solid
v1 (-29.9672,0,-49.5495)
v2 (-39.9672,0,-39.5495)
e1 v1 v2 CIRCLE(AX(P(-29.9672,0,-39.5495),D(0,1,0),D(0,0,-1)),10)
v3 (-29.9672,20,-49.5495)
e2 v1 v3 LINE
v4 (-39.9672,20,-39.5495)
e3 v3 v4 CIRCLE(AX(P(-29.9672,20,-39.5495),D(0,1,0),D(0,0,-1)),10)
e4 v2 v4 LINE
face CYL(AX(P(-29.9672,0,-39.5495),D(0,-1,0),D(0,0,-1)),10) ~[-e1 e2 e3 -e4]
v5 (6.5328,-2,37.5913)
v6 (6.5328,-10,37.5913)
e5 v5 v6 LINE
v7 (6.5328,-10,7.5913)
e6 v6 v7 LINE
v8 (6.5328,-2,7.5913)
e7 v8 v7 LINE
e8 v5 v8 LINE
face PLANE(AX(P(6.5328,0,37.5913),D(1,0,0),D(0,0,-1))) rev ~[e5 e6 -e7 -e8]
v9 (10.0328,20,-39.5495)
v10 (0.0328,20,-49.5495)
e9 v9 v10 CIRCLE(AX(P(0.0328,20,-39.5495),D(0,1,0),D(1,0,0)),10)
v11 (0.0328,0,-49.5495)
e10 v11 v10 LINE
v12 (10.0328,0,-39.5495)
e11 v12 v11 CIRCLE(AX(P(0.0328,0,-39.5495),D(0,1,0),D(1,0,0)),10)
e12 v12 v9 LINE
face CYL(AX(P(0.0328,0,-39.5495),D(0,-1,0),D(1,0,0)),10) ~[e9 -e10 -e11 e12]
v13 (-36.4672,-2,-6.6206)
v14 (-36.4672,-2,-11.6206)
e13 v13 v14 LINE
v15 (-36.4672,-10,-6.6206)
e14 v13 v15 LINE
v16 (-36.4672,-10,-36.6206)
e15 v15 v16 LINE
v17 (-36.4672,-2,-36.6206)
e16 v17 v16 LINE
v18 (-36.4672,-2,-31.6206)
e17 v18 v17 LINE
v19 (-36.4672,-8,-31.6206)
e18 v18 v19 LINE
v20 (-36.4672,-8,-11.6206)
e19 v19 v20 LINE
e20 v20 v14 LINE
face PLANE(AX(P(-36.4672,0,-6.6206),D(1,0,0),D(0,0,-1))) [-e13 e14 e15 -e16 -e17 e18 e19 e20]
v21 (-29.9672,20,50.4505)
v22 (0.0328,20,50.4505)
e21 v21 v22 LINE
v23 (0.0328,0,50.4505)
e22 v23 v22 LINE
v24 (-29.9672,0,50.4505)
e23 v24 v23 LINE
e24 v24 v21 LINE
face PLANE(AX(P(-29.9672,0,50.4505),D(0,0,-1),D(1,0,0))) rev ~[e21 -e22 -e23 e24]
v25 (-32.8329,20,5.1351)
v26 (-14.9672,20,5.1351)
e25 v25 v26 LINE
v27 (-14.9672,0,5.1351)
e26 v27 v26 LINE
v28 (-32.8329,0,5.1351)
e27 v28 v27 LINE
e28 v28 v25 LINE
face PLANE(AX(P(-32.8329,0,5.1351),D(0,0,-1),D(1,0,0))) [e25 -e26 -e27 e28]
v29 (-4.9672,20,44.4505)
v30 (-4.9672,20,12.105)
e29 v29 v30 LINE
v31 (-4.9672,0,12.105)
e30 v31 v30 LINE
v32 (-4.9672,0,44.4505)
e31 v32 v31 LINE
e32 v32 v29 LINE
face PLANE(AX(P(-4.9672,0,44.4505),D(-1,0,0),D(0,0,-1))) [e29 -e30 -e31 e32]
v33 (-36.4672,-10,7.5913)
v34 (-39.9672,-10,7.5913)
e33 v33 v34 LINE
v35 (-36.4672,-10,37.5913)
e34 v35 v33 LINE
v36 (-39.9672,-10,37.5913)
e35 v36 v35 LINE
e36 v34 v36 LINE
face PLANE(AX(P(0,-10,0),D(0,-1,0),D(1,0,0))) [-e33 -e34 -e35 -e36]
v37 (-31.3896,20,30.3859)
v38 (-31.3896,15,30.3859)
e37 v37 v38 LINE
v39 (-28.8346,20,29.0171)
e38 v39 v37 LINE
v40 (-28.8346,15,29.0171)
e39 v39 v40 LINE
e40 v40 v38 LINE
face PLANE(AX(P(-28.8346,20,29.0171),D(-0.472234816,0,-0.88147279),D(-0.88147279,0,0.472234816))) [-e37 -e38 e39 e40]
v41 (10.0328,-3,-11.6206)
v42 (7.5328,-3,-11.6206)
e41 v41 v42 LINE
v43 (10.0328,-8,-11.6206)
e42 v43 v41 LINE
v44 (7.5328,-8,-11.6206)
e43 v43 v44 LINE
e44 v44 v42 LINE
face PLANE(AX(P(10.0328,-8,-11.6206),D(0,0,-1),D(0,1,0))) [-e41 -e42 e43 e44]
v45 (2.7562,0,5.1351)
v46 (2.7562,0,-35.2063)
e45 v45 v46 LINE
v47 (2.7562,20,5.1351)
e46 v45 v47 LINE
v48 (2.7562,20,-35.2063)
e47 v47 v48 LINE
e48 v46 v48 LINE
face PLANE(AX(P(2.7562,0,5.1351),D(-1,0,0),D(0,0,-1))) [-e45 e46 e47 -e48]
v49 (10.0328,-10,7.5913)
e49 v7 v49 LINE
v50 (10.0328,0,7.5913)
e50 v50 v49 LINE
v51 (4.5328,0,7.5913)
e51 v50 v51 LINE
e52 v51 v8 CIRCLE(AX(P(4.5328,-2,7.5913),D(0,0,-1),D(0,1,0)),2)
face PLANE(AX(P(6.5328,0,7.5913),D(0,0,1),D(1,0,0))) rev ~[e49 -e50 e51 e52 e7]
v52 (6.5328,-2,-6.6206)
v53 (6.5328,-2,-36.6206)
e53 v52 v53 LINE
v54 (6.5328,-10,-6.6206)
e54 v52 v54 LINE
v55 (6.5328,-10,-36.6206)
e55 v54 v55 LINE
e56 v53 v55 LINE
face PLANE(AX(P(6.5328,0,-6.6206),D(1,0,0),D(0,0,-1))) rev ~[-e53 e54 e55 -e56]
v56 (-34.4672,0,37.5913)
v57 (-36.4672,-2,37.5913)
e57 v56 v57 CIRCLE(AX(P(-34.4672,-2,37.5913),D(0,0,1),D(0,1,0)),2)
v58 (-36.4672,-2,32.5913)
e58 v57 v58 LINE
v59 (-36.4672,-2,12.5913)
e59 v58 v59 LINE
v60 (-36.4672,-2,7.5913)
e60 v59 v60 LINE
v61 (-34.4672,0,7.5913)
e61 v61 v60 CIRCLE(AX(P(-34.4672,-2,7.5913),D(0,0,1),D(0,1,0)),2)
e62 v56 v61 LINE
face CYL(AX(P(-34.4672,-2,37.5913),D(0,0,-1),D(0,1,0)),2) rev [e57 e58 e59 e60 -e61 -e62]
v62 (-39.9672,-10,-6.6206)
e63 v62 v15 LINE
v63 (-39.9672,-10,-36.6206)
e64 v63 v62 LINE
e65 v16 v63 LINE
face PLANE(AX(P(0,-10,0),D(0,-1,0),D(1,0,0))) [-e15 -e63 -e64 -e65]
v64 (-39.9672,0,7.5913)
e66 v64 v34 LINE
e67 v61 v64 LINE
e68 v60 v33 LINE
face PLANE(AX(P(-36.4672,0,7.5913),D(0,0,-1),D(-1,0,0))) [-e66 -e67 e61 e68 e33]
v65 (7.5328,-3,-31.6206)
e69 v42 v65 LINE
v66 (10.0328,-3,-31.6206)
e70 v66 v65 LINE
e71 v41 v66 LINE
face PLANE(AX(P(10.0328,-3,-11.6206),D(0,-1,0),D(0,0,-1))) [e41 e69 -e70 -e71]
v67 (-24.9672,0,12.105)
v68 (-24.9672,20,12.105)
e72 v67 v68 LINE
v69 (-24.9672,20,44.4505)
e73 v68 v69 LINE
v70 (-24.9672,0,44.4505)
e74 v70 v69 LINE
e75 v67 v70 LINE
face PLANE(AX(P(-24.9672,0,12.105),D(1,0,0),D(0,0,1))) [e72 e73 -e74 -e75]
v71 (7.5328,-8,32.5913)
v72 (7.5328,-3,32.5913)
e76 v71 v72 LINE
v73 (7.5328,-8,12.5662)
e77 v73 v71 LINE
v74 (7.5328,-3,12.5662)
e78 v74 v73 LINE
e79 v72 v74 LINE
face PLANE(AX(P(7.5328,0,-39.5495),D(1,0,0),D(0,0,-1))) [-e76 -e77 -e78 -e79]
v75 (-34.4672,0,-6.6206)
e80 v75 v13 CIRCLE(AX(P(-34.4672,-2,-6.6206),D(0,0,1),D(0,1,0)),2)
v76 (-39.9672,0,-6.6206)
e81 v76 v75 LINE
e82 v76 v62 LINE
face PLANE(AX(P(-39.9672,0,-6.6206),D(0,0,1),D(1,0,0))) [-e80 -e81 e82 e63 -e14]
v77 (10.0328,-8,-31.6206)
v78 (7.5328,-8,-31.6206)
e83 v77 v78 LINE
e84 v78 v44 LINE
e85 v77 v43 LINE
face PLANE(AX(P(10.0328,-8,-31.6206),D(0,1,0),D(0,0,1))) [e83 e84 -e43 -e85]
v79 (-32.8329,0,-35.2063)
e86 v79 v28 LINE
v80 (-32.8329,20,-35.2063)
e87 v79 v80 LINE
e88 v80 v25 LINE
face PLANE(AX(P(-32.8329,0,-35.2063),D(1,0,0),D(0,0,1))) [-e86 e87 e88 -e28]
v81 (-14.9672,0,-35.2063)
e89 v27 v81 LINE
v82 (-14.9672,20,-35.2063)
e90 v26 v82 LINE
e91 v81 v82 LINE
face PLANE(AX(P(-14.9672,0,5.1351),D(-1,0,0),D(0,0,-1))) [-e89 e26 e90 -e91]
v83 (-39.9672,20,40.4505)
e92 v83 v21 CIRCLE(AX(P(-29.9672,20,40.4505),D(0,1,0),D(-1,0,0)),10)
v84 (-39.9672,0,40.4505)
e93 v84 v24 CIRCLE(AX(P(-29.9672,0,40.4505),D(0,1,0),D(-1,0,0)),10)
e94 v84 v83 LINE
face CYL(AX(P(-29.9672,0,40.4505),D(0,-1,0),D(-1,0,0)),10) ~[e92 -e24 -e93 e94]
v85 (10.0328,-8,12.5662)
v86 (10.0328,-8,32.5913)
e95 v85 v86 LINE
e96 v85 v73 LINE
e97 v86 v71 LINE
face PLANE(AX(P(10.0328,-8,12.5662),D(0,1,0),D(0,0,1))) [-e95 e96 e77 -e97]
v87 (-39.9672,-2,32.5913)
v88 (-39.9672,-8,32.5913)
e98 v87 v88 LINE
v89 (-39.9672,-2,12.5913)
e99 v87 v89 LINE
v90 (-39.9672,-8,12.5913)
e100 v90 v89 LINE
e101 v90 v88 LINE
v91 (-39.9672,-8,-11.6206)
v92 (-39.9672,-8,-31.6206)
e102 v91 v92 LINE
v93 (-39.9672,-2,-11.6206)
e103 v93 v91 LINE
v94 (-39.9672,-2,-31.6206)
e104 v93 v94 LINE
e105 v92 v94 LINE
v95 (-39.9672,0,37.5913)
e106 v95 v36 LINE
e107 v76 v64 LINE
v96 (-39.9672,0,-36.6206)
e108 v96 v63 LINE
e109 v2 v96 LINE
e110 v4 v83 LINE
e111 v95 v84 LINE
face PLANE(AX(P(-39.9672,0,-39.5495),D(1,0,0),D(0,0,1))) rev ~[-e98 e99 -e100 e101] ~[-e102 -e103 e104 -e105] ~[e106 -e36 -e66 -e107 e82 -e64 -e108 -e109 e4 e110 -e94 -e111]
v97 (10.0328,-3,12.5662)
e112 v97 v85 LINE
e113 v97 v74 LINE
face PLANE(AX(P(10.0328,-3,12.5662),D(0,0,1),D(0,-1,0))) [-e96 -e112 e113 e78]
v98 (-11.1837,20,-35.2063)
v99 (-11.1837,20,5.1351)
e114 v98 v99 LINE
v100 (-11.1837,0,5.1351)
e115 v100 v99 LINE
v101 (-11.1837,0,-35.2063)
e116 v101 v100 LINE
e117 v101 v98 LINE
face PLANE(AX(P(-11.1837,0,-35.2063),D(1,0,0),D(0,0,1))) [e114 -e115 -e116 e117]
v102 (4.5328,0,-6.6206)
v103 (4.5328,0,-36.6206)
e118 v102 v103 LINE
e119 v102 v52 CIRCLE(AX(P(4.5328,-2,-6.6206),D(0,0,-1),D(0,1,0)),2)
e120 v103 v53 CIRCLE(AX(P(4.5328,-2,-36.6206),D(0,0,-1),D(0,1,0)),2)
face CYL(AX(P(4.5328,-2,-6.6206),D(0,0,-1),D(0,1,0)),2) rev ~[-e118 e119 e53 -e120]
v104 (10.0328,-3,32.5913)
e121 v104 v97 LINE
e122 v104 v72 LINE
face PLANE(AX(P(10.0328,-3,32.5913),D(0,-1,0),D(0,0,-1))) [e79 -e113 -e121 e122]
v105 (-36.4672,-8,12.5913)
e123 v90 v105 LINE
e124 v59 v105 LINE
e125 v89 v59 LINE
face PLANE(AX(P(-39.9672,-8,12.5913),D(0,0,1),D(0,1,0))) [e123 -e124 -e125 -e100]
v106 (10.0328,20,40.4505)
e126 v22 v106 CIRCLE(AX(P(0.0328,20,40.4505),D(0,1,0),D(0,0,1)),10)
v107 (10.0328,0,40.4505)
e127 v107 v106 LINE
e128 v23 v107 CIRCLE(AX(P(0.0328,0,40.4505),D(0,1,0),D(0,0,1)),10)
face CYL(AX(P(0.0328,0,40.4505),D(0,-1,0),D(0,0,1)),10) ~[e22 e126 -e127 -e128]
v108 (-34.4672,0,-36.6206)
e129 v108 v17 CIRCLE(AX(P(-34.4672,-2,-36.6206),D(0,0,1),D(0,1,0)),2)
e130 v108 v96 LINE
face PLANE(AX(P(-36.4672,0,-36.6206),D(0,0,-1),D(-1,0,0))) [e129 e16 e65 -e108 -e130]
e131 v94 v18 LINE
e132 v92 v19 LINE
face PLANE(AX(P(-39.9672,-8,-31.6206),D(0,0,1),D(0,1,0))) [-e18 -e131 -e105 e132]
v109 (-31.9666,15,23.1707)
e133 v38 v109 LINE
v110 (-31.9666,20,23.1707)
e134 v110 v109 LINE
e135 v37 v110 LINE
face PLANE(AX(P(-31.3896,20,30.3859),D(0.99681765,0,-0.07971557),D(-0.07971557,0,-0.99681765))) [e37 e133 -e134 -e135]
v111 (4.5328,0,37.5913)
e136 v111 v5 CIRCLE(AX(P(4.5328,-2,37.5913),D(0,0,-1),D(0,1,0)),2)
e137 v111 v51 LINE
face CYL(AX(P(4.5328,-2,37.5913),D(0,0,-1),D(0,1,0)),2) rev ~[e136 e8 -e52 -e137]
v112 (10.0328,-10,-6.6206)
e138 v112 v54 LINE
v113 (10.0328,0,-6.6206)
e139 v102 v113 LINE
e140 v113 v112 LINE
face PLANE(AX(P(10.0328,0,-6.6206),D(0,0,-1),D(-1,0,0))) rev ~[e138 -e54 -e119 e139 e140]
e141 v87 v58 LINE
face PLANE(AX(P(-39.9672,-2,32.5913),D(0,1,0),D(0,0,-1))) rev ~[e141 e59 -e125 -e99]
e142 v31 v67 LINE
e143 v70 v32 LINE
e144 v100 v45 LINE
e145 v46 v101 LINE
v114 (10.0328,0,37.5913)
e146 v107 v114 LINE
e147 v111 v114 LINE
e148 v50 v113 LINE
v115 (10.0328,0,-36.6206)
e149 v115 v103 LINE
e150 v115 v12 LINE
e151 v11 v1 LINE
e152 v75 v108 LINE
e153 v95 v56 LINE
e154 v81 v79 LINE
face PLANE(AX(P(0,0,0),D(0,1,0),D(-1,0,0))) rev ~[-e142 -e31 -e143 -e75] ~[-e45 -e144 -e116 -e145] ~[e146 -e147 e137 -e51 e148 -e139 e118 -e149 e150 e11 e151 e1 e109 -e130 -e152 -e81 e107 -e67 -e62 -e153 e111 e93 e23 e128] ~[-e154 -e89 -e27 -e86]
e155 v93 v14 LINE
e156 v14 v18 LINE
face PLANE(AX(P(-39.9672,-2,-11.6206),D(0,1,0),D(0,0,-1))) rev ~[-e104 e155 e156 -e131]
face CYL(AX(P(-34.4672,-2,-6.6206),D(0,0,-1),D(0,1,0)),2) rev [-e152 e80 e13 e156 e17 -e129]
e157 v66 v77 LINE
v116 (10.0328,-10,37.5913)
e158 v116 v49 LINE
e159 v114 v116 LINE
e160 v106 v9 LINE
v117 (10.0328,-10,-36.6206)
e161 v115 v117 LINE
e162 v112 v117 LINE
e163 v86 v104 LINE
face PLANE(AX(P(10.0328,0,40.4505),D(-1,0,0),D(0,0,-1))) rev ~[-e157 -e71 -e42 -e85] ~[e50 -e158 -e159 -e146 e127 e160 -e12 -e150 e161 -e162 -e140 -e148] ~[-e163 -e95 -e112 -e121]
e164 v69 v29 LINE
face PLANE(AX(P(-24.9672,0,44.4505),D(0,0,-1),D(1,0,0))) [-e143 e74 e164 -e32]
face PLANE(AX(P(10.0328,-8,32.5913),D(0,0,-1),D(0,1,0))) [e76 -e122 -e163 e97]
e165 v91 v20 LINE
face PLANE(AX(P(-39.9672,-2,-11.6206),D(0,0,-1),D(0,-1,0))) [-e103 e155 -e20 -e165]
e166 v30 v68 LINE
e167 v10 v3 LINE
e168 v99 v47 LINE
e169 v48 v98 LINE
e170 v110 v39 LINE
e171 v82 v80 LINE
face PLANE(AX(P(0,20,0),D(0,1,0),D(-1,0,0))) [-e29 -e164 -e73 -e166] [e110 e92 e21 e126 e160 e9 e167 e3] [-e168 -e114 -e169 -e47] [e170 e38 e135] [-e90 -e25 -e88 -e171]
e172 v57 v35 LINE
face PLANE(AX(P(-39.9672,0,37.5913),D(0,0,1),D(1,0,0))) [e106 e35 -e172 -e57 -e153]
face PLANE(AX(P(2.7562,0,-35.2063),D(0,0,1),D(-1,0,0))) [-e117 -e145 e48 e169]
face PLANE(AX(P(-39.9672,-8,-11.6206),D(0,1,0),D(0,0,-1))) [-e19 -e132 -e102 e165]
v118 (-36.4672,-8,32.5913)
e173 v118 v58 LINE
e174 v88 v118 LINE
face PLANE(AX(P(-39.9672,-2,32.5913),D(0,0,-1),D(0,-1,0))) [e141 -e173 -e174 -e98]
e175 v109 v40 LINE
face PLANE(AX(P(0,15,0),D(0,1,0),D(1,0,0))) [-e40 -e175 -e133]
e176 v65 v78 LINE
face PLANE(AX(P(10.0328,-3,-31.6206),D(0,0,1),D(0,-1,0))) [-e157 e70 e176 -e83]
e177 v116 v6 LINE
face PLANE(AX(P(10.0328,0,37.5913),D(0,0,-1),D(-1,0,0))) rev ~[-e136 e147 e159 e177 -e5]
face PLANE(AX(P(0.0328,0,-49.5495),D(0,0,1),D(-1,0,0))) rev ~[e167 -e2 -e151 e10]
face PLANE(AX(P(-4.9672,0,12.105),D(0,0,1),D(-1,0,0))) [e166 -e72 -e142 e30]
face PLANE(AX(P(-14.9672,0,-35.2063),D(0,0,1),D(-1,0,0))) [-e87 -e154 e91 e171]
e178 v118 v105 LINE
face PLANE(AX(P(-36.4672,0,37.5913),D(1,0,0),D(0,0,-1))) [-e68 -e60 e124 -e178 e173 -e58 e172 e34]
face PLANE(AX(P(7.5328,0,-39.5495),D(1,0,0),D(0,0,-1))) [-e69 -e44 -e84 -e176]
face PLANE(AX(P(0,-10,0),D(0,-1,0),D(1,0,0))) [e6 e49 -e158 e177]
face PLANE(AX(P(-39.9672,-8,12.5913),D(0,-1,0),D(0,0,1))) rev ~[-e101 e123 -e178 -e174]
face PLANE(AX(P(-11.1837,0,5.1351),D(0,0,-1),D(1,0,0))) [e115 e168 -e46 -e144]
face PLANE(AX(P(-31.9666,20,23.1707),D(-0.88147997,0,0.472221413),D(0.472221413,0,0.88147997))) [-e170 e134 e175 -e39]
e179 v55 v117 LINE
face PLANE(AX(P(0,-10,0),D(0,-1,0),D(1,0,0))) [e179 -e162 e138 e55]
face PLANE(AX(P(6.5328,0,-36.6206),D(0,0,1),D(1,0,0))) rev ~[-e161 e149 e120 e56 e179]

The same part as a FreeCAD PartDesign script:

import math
import FreeCAD as App
import Part
import Sketcher

V = App.Vector
Q = App.Units.Quantity


def edges_at(feature, points):
    """Names of the edges that pass closest to the given points."""
    edges = feature.Shape.Edges
    near = lambda p: min(range(len(edges)), key=lambda i: edges[i].distToShape(Part.Vertex(*p))[0])
    return sorted({f"Edge{near(p) + 1}" for p in points})

doc = App.newDocument("Part")
params = doc.addObject("Spreadsheet::Sheet", "Params")
for row, (alias, value) in enumerate([
    ("sketch1_radius", "10 mm"),
    ("sketch1_height", "80 mm"),
    ("sketch1_width", "13.94 mm"),
    ("pad1_length", "20 mm"),
    ("sketch2_height", "30 mm"),
    ("sketch2_width", "3.5 mm"),
    ("pad2_length", "10 mm"),
    ("fillet_radius", "2 mm"),
    ("sketch3_width", "5 mm"),
    ("sketch3_height", "20 mm"),
    ("pocket1_length", "2.5 mm"),
    ("pocket2_length", "5 mm"),
    ("sketch5_width", "6 mm"),
    ("sketch5_height", "20 mm"),
    ("pocket3_length", "5 mm"),
], start=1):
    params.set(f"A{row}", alias)
    params.set(f"B{row}", "=" + value)
    params.setAlias(f"B{row}", alias)

body = doc.addObject("PartDesign::Body", "Body")

# Sketch on XZ plane
sketch1 = body.newObject("Sketcher::SketchObject", "Sketch")
sketch1.AttachmentSupport = (doc.getObject("XZ_Plane"), [""])
sketch1.MapMode = "FlatFace"
sketch1.addGeometry(Part.ArcOfCircle(Part.Circle(V(-29.9672, 40.4505, 0), V(0, 0, 1), 10), math.radians(90), math.radians(180)), False)
sketch1.addGeometry(Part.LineSegment(V(-29.9672, 50.4505, 0), V(0.0328, 50.4505, 0)), False)
sketch1.addGeometry(Part.ArcOfCircle(Part.Circle(V(0.0328, 40.4505, 0), V(0, 0, 1), 10), math.radians(0), math.radians(90)), False)
sketch1.addGeometry(Part.LineSegment(V(10.0328, 40.4505, 0), V(10.0328, -39.5495, 0)), False)
sketch1.addGeometry(Part.ArcOfCircle(Part.Circle(V(0.0328, -39.5495, 0), V(0, 0, 1), 10), math.radians(-90), math.radians(0)), False)
sketch1.addGeometry(Part.LineSegment(V(0.0328, -49.5495, 0), V(-29.9672, -49.5495, 0)), False)
sketch1.addGeometry(Part.ArcOfCircle(Part.Circle(V(-29.9672, -39.5495, 0), V(0, 0, 1), 10), math.radians(180), math.radians(270)), False)
sketch1.addGeometry(Part.LineSegment(V(-39.9672, -39.5495, 0), V(-39.9672, 40.4505, 0)), False)
sketch1.addGeometry(Part.LineSegment(V(2.7562, 5.1351, 0), V(-11.1837, 5.1351, 0)), False)
sketch1.addGeometry(Part.LineSegment(V(-11.1837, 5.1351, 0), V(-11.1837, -35.2063, 0)), False)
sketch1.addGeometry(Part.LineSegment(V(-11.1837, -35.2063, 0), V(2.7562, -35.2063, 0)), False)
sketch1.addGeometry(Part.LineSegment(V(2.7562, -35.2063, 0), V(2.7562, 5.1351, 0)), False)
sketch1.addGeometry(Part.LineSegment(V(-14.9672, 5.1351, 0), V(-32.8329, 5.1351, 0)), False)
sketch1.addGeometry(Part.LineSegment(V(-32.8329, 5.1351, 0), V(-32.8329, -35.2063, 0)), False)
sketch1.addGeometry(Part.LineSegment(V(-32.8329, -35.2063, 0), V(-14.9672, -35.2063, 0)), False)
sketch1.addGeometry(Part.LineSegment(V(-14.9672, -35.2063, 0), V(-14.9672, 5.1351, 0)), False)
sketch1.addGeometry(Part.LineSegment(V(-4.9672, 44.4505, 0), V(-24.9672, 44.4505, 0)), False)
sketch1.addGeometry(Part.LineSegment(V(-24.9672, 44.4505, 0), V(-24.9672, 12.105, 0)), False)
sketch1.addGeometry(Part.LineSegment(V(-24.9672, 12.105, 0), V(-4.9672, 12.105, 0)), False)
sketch1.addGeometry(Part.LineSegment(V(-4.9672, 12.105, 0), V(-4.9672, 44.4505, 0)), False)
sketch1.addConstraint(Sketcher.Constraint("Tangent", 0, 1, 1, 1))
sketch1.addConstraint(Sketcher.Constraint("Tangent", 1, 2, 2, 2))
sketch1.addConstraint(Sketcher.Constraint("Tangent", 2, 1, 3, 1))
sketch1.addConstraint(Sketcher.Constraint("Tangent", 3, 2, 4, 2))
sketch1.addConstraint(Sketcher.Constraint("Tangent", 4, 1, 5, 1))
sketch1.addConstraint(Sketcher.Constraint("Tangent", 5, 2, 6, 2))
sketch1.addConstraint(Sketcher.Constraint("Tangent", 6, 1, 7, 1))
sketch1.addConstraint(Sketcher.Constraint("Tangent", 7, 2, 0, 2))
sketch1.addConstraint(Sketcher.Constraint("Coincident", 8, 2, 9, 1))
sketch1.addConstraint(Sketcher.Constraint("Coincident", 9, 2, 10, 1))
sketch1.addConstraint(Sketcher.Constraint("Coincident", 10, 2, 11, 1))
sketch1.addConstraint(Sketcher.Constraint("Coincident", 11, 2, 8, 1))
sketch1.addConstraint(Sketcher.Constraint("Coincident", 12, 2, 13, 1))
sketch1.addConstraint(Sketcher.Constraint("Coincident", 13, 2, 14, 1))
sketch1.addConstraint(Sketcher.Constraint("Coincident", 14, 2, 15, 1))
sketch1.addConstraint(Sketcher.Constraint("Coincident", 15, 2, 12, 1))
sketch1.addConstraint(Sketcher.Constraint("Coincident", 16, 2, 17, 1))
sketch1.addConstraint(Sketcher.Constraint("Coincident", 17, 2, 18, 1))
sketch1.addConstraint(Sketcher.Constraint("Coincident", 18, 2, 19, 1))
sketch1.addConstraint(Sketcher.Constraint("Coincident", 19, 2, 16, 1))
sketch1.addConstraint(Sketcher.Constraint("Horizontal", 1))
sketch1.addConstraint(Sketcher.Constraint("Vertical", 3))
sketch1.addConstraint(Sketcher.Constraint("Horizontal", 5))
sketch1.addConstraint(Sketcher.Constraint("Vertical", 7))
sketch1.addConstraint(Sketcher.Constraint("Horizontal", 8))
sketch1.addConstraint(Sketcher.Constraint("Vertical", 9))
sketch1.addConstraint(Sketcher.Constraint("Horizontal", 10))
sketch1.addConstraint(Sketcher.Constraint("Vertical", 11))
sketch1.addConstraint(Sketcher.Constraint("Horizontal", 12))
sketch1.addConstraint(Sketcher.Constraint("Vertical", 13))
sketch1.addConstraint(Sketcher.Constraint("Horizontal", 14))
sketch1.addConstraint(Sketcher.Constraint("Vertical", 15))
sketch1.addConstraint(Sketcher.Constraint("Horizontal", 16))
sketch1.addConstraint(Sketcher.Constraint("Vertical", 17))
sketch1.addConstraint(Sketcher.Constraint("Horizontal", 18))
sketch1.addConstraint(Sketcher.Constraint("Vertical", 19))
sketch1.addConstraint(Sketcher.Constraint("Equal", 0, 2))
sketch1.addConstraint(Sketcher.Constraint("Equal", 2, 4))
sketch1.addConstraint(Sketcher.Constraint("Equal", 4, 6))
sketch1.addConstraint(Sketcher.Constraint("Horizontal", 11, 2, 12, 2))
sketch1.addConstraint(Sketcher.Constraint("Horizontal", 10, 2, 13, 2))
sketch1.addConstraint(Sketcher.Constraint("Radius", 0, 10.0))
sketch1.addConstraint(Sketcher.Constraint("DistanceX", 6, 1, 3, 2, 50.0))
sketch1.addConstraint(Sketcher.Constraint("DistanceX", 6, 3, 14, 2, 15.0))
sketch1.addConstraint(Sketcher.Constraint("DistanceY", 16, 2, 0, 1, 6.0))
sketch1.addConstraint(Sketcher.Constraint("DistanceX", 7, 2, 16, 2, 15.0))
sketch1.addConstraint(Sketcher.Constraint("DistanceX", 15, 2, 18, 2, 10.0))
sketch1.addConstraint(Sketcher.Constraint("DistanceY", 3, 2, 3, 1, 80.0))
sketch1.addConstraint(Sketcher.Constraint("DistanceX", 8, 2, 8, 1, 13.94))
sketch1.addConstraint(Sketcher.Constraint("DistanceY", 12, 2, 17, 2, 6.97))
sketch1.addConstraint(Sketcher.Constraint("DistanceX", 12, 2, 12, 1, 17.8657))
sketch1.addConstraint(Sketcher.Constraint("DistanceY", 9, 2, 9, 1, 40.3414))
sketch1.addConstraint(Sketcher.Constraint("DistanceY", 17, 2, 17, 1, 32.3455))
sketch1.addConstraint(Sketcher.Constraint("DistanceY", -1, 1, 8, 2, 5.135))
sketch1.addConstraint(Sketcher.Constraint("DistanceX", 12, 2, -1, 1, 32.833))
sketch1.addConstraint(Sketcher.Constraint("DistanceX", 12, 2, 11, 2, 35.589))
sketch1.setExpression("Constraints[41]", "Params.sketch1_radius")
sketch1.setExpression("Constraints[47]", "Params.sketch1_height")
sketch1.setExpression("Constraints[48]", "Params.sketch1_width")
pad1 = body.newObject("PartDesign::Pad", "Pad")
pad1.Profile = sketch1
pad1.setExpression("Length", "Params.pad1_length")
pad1.Reversed = True

# Sketch on XZ plane
sketch2 = body.newObject("Sketcher::SketchObject", "Sketch001")
sketch2.AttachmentSupport = (doc.getObject("XZ_Plane"), [""])
sketch2.MapMode = "FlatFace"
sketch2.addGeometry(Part.LineSegment(V(10.0328, -36.6206, 0), V(10.0328, -6.6206, 0)), False)
sketch2.addGeometry(Part.LineSegment(V(10.0328, -6.6206, 0), V(6.5328, -6.6206, 0)), False)
sketch2.addGeometry(Part.LineSegment(V(6.5328, -6.6206, 0), V(6.5328, -36.6206, 0)), False)
sketch2.addGeometry(Part.LineSegment(V(6.5328, -36.6206, 0), V(10.0328, -36.6206, 0)), False)
sketch2.addGeometry(Part.LineSegment(V(10.0328, 7.5913, 0), V(10.0328, 37.5913, 0)), False)
sketch2.addGeometry(Part.LineSegment(V(10.0328, 37.5913, 0), V(6.5328, 37.5913, 0)), False)
sketch2.addGeometry(Part.LineSegment(V(6.5328, 37.5913, 0), V(6.5328, 7.5913, 0)), False)
sketch2.addGeometry(Part.LineSegment(V(6.5328, 7.5913, 0), V(10.0328, 7.5913, 0)), False)
sketch2.addGeometry(Part.LineSegment(V(-39.9672, 37.5913, 0), V(-39.9672, 7.5913, 0)), False)
sketch2.addGeometry(Part.LineSegment(V(-39.9672, 7.5913, 0), V(-36.4672, 7.5913, 0)), False)
sketch2.addGeometry(Part.LineSegment(V(-36.4672, 7.5913, 0), V(-36.4672, 37.5913, 0)), False)
sketch2.addGeometry(Part.LineSegment(V(-36.4672, 37.5913, 0), V(-39.9672, 37.5913, 0)), False)
sketch2.addGeometry(Part.LineSegment(V(-39.9672, -6.6206, 0), V(-39.9672, -36.6206, 0)), False)
sketch2.addGeometry(Part.LineSegment(V(-39.9672, -36.6206, 0), V(-36.4672, -36.6206, 0)), False)
sketch2.addGeometry(Part.LineSegment(V(-36.4672, -36.6206, 0), V(-36.4672, -6.6206, 0)), False)
sketch2.addGeometry(Part.LineSegment(V(-36.4672, -6.6206, 0), V(-39.9672, -6.6206, 0)), False)
sketch2.addConstraint(Sketcher.Constraint("Coincident", 0, 2, 1, 1))
sketch2.addConstraint(Sketcher.Constraint("Coincident", 1, 2, 2, 1))
sketch2.addConstraint(Sketcher.Constraint("Coincident", 2, 2, 3, 1))
sketch2.addConstraint(Sketcher.Constraint("Coincident", 3, 2, 0, 1))
sketch2.addConstraint(Sketcher.Constraint("Coincident", 4, 2, 5, 1))
sketch2.addConstraint(Sketcher.Constraint("Coincident", 5, 2, 6, 1))
sketch2.addConstraint(Sketcher.Constraint("Coincident", 6, 2, 7, 1))
sketch2.addConstraint(Sketcher.Constraint("Coincident", 7, 2, 4, 1))
sketch2.addConstraint(Sketcher.Constraint("Coincident", 8, 2, 9, 1))
sketch2.addConstraint(Sketcher.Constraint("Coincident", 9, 2, 10, 1))
sketch2.addConstraint(Sketcher.Constraint("Coincident", 10, 2, 11, 1))
sketch2.addConstraint(Sketcher.Constraint("Coincident", 11, 2, 8, 1))
sketch2.addConstraint(Sketcher.Constraint("Coincident", 12, 2, 13, 1))
sketch2.addConstraint(Sketcher.Constraint("Coincident", 13, 2, 14, 1))
sketch2.addConstraint(Sketcher.Constraint("Coincident", 14, 2, 15, 1))
sketch2.addConstraint(Sketcher.Constraint("Coincident", 15, 2, 12, 1))
sketch2.addConstraint(Sketcher.Constraint("Vertical", 0))
sketch2.addConstraint(Sketcher.Constraint("Horizontal", 1))
sketch2.addConstraint(Sketcher.Constraint("Vertical", 2))
sketch2.addConstraint(Sketcher.Constraint("Horizontal", 3))
sketch2.addConstraint(Sketcher.Constraint("Vertical", 4))
sketch2.addConstraint(Sketcher.Constraint("Horizontal", 5))
sketch2.addConstraint(Sketcher.Constraint("Vertical", 6))
sketch2.addConstraint(Sketcher.Constraint("Horizontal", 7))
sketch2.addConstraint(Sketcher.Constraint("Vertical", 8))
sketch2.addConstraint(Sketcher.Constraint("Horizontal", 9))
sketch2.addConstraint(Sketcher.Constraint("Vertical", 10))
sketch2.addConstraint(Sketcher.Constraint("Horizontal", 11))
sketch2.addConstraint(Sketcher.Constraint("Vertical", 12))
sketch2.addConstraint(Sketcher.Constraint("Horizontal", 13))
sketch2.addConstraint(Sketcher.Constraint("Vertical", 14))
sketch2.addConstraint(Sketcher.Constraint("Horizontal", 15))
sketch2.addConstraint(Sketcher.Constraint("Horizontal", 7, 2, 8, 2))
sketch2.addConstraint(Sketcher.Constraint("Horizontal", 5, 2, 10, 2))
sketch2.addConstraint(Sketcher.Constraint("Horizontal", 3, 2, 12, 2))
sketch2.addConstraint(Sketcher.Constraint("Horizontal", 1, 2, 14, 2))
sketch2.addConstraint(Sketcher.Constraint("Vertical", 3, 2, 4, 2))
sketch2.addConstraint(Sketcher.Constraint("Vertical", 2, 2, 5, 2))
sketch2.addConstraint(Sketcher.Constraint("Vertical", 11, 2, 12, 2))
sketch2.addConstraint(Sketcher.Constraint("Vertical", 10, 2, 13, 2))
sketch2.addConstraint(Sketcher.Constraint("Equal", 7, 9))
sketch2.addConstraint(Sketcher.Constraint("Equal", 2, 4))
sketch2.addConstraint(Sketcher.Constraint("DistanceY", 0, 1, 0, 2, 30.0))
sketch2.addConstraint(Sketcher.Constraint("DistanceX", 1, 2, 1, 1, 3.5))
sketch2.addConstraint(Sketcher.Constraint("DistanceX", 8, 2, 7, 2, 50.0))
sketch2.addConstraint(Sketcher.Constraint("DistanceY", 0, 2, 4, 2, 44.212))
sketch2.addConstraint(Sketcher.Constraint("DistanceX", -1, 1, 0, 2, 10.0328))
sketch2.addConstraint(Sketcher.Constraint("DistanceY", 0, 2, -1, 1, 6.6206))
sketch2.setExpression("Constraints[42]", "Params.sketch2_height")
sketch2.setExpression("Constraints[43]", "Params.sketch2_width")
pad2 = body.newObject("PartDesign::Pad", "Pad001")
pad2.Profile = sketch2
pad2.setExpression("Length", "Params.pad2_length")
doc.recompute()

fillet = body.newObject("PartDesign::Fillet", "Fillet")
fillet.Base = (pad2, edges_at(pad2, [
    (6.533, 0, 22.591),
    (6.533, 0, -21.621),
    (-36.467, 0, 22.591),
    (-36.467, 0, -21.621),
]))
fillet.setExpression("Radius", "Params.fillet_radius")

# Sketch on YZ plane
sketch3 = body.newObject("Sketcher::SketchObject", "Sketch002")
sketch3.AttachmentSupport = (doc.getObject("YZ_Plane"), [""])
sketch3.MapMode = "FlatFace"
sketch3.AttachmentOffset = App.Placement(V(0, 0, 10.0328), App.Rotation())
sketch3.addGeometry(Part.LineSegment(V(-3, 12.5662, 0), V(-3, 32.5913, 0)), False)
sketch3.addGeometry(Part.LineSegment(V(-3, 32.5913, 0), V(-8, 32.5913, 0)), False)
sketch3.addGeometry(Part.LineSegment(V(-8, 32.5913, 0), V(-8, 12.5662, 0)), False)
sketch3.addGeometry(Part.LineSegment(V(-8, 12.5662, 0), V(-3, 12.5662, 0)), False)
sketch3.addGeometry(Part.LineSegment(V(-3, -31.6206, 0), V(-3, -11.6206, 0)), False)
sketch3.addGeometry(Part.LineSegment(V(-3, -11.6206, 0), V(-8, -11.6206, 0)), False)
sketch3.addGeometry(Part.LineSegment(V(-8, -11.6206, 0), V(-8, -31.6206, 0)), False)
sketch3.addGeometry(Part.LineSegment(V(-8, -31.6206, 0), V(-3, -31.6206, 0)), False)
sketch3.addConstraint(Sketcher.Constraint("Coincident", 0, 2, 1, 1))
sketch3.addConstraint(Sketcher.Constraint("Coincident", 1, 2, 2, 1))
sketch3.addConstraint(Sketcher.Constraint("Coincident", 2, 2, 3, 1))
sketch3.addConstraint(Sketcher.Constraint("Coincident", 3, 2, 0, 1))
sketch3.addConstraint(Sketcher.Constraint("Coincident", 4, 2, 5, 1))
sketch3.addConstraint(Sketcher.Constraint("Coincident", 5, 2, 6, 1))
sketch3.addConstraint(Sketcher.Constraint("Coincident", 6, 2, 7, 1))
sketch3.addConstraint(Sketcher.Constraint("Coincident", 7, 2, 4, 1))
sketch3.addConstraint(Sketcher.Constraint("Vertical", 0))
sketch3.addConstraint(Sketcher.Constraint("Horizontal", 1))
sketch3.addConstraint(Sketcher.Constraint("Vertical", 2))
sketch3.addConstraint(Sketcher.Constraint("Horizontal", 3))
sketch3.addConstraint(Sketcher.Constraint("Vertical", 4))
sketch3.addConstraint(Sketcher.Constraint("Horizontal", 5))
sketch3.addConstraint(Sketcher.Constraint("Vertical", 6))
sketch3.addConstraint(Sketcher.Constraint("Horizontal", 7))
sketch3.addConstraint(Sketcher.Constraint("Vertical", 3, 2, 4, 2))
sketch3.addConstraint(Sketcher.Constraint("Vertical", 2, 2, 5, 2))
sketch3.addConstraint(Sketcher.Constraint("DistanceX", 1, 2, 1, 1, 5.0))
sketch3.addConstraint(Sketcher.Constraint("DistanceX", 0, 2, -1, 1, 3.0))
sketch3.addConstraint(Sketcher.Constraint("DistanceY", 4, 1, 4, 2, 20.0))
sketch3.addConstraint(Sketcher.Constraint("DistanceY", 0, 1, 0, 2, 20.025))
sketch3.addConstraint(Sketcher.Constraint("DistanceY", 4, 2, 0, 2, 44.212))
sketch3.addConstraint(Sketcher.Constraint("DistanceY", -1, 1, 0, 2, 32.5913))
sketch3.setExpression("Constraints[18]", "Params.sketch3_width")
sketch3.setExpression("Constraints[20]", "Params.sketch3_height")
pocket1 = body.newObject("PartDesign::Pocket", "Pocket")
pocket1.Profile = sketch3
pocket1.setExpression("Length", "Params.pocket1_length")

# Sketch on XZ plane
sketch4 = body.newObject("Sketcher::SketchObject", "Sketch003")
sketch4.AttachmentSupport = (doc.getObject("XZ_Plane"), [""])
sketch4.MapMode = "FlatFace"
sketch4.AttachmentOffset = App.Placement(V(0, 0, -20), App.Rotation())
sketch4.addGeometry(Part.LineSegment(V(-31.9666, 23.1707, 0), V(-31.3896, 30.3859, 0)), False)
sketch4.addGeometry(Part.LineSegment(V(-31.3896, 30.3859, 0), V(-28.8346, 29.0171, 0)), False)
sketch4.addGeometry(Part.LineSegment(V(-28.8346, 29.0171, 0), V(-31.9666, 23.1707, 0)), False)
sketch4.addConstraint(Sketcher.Constraint("Coincident", 0, 2, 1, 1))
sketch4.addConstraint(Sketcher.Constraint("Coincident", 1, 2, 2, 1))
sketch4.addConstraint(Sketcher.Constraint("Coincident", 2, 2, 0, 1))
sketch4.addConstraint(Sketcher.Constraint("Perpendicular", 1, 2))
sketch4.addConstraint(Sketcher.Constraint("Angle", 1, Q("-28.1795 deg")))
sketch4.addConstraint(Sketcher.Constraint("DistanceY", -1, 1, 0, 2, 30.386))
sketch4.addConstraint(Sketcher.Constraint("DistanceY", -1, 1, 1, 2, 29.017))
sketch4.addConstraint(Sketcher.Constraint("DistanceX", 2, 2, 1, 2, 3.132))
sketch4.addConstraint(Sketcher.Constraint("DistanceX", 0, 2, -1, 1, 31.3896))
pocket2 = body.newObject("PartDesign::Pocket", "Pocket001")
pocket2.Profile = sketch4
pocket2.setExpression("Length", "Params.pocket2_length")
pocket2.Reversed = True

# Sketch on YZ plane
sketch5 = body.newObject("Sketcher::SketchObject", "Sketch004")
sketch5.AttachmentSupport = (doc.getObject("YZ_Plane"), [""])
sketch5.MapMode = "FlatFace"
sketch5.AttachmentOffset = App.Placement(V(0, 0, -39.9672), App.Rotation())
sketch5.addGeometry(Part.LineSegment(V(-8, -11.6206, 0), V(-2, -11.6206, 0)), False)
sketch5.addGeometry(Part.LineSegment(V(-2, -11.6206, 0), V(-2, -31.6206, 0)), False)
sketch5.addGeometry(Part.LineSegment(V(-2, -31.6206, 0), V(-8, -31.6206, 0)), False)
sketch5.addGeometry(Part.LineSegment(V(-8, -31.6206, 0), V(-8, -11.6206, 0)), False)
sketch5.addGeometry(Part.LineSegment(V(-8, 32.5913, 0), V(-2, 32.5913, 0)), False)
sketch5.addGeometry(Part.LineSegment(V(-2, 32.5913, 0), V(-2, 12.5913, 0)), False)
sketch5.addGeometry(Part.LineSegment(V(-2, 12.5913, 0), V(-8, 12.5913, 0)), False)
sketch5.addGeometry(Part.LineSegment(V(-8, 12.5913, 0), V(-8, 32.5913, 0)), False)
sketch5.addConstraint(Sketcher.Constraint("Coincident", 0, 2, 1, 1))
sketch5.addConstraint(Sketcher.Constraint("Coincident", 1, 2, 2, 1))
sketch5.addConstraint(Sketcher.Constraint("Coincident", 2, 2, 3, 1))
sketch5.addConstraint(Sketcher.Constraint("Coincident", 3, 2, 0, 1))
sketch5.addConstraint(Sketcher.Constraint("Coincident", 4, 2, 5, 1))
sketch5.addConstraint(Sketcher.Constraint("Coincident", 5, 2, 6, 1))
sketch5.addConstraint(Sketcher.Constraint("Coincident", 6, 2, 7, 1))
sketch5.addConstraint(Sketcher.Constraint("Coincident", 7, 2, 4, 1))
sketch5.addConstraint(Sketcher.Constraint("Horizontal", 0))
sketch5.addConstraint(Sketcher.Constraint("Vertical", 1))
sketch5.addConstraint(Sketcher.Constraint("Horizontal", 2))
sketch5.addConstraint(Sketcher.Constraint("Vertical", 3))
sketch5.addConstraint(Sketcher.Constraint("Horizontal", 4))
sketch5.addConstraint(Sketcher.Constraint("Vertical", 5))
sketch5.addConstraint(Sketcher.Constraint("Horizontal", 6))
sketch5.addConstraint(Sketcher.Constraint("Vertical", 7))
sketch5.addConstraint(Sketcher.Constraint("Vertical", 1, 2, 4, 2))
sketch5.addConstraint(Sketcher.Constraint("Vertical", 3, 2, 6, 2))
sketch5.addConstraint(Sketcher.Constraint("Equal", 3, 5))
sketch5.addConstraint(Sketcher.Constraint("DistanceX", 0, 2, -1, 1, 2.0))
sketch5.addConstraint(Sketcher.Constraint("DistanceX", 0, 1, 0, 2, 6.0))
sketch5.addConstraint(Sketcher.Constraint("DistanceY", 1, 2, 1, 1, 20.0))
sketch5.addConstraint(Sketcher.Constraint("DistanceY", 0, 2, 4, 2, 44.212))
sketch5.addConstraint(Sketcher.Constraint("DistanceY", 0, 2, -1, 1, 11.6206))
sketch5.setExpression("Constraints[20]", "Params.sketch5_width")
sketch5.setExpression("Constraints[21]", "Params.sketch5_height")
pocket3 = body.newObject("PartDesign::Pocket", "Pocket002")
pocket3.Profile = sketch5
pocket3.setExpression("Length", "Params.pocket3_length")
pocket3.Reversed = True

doc.recompute()
